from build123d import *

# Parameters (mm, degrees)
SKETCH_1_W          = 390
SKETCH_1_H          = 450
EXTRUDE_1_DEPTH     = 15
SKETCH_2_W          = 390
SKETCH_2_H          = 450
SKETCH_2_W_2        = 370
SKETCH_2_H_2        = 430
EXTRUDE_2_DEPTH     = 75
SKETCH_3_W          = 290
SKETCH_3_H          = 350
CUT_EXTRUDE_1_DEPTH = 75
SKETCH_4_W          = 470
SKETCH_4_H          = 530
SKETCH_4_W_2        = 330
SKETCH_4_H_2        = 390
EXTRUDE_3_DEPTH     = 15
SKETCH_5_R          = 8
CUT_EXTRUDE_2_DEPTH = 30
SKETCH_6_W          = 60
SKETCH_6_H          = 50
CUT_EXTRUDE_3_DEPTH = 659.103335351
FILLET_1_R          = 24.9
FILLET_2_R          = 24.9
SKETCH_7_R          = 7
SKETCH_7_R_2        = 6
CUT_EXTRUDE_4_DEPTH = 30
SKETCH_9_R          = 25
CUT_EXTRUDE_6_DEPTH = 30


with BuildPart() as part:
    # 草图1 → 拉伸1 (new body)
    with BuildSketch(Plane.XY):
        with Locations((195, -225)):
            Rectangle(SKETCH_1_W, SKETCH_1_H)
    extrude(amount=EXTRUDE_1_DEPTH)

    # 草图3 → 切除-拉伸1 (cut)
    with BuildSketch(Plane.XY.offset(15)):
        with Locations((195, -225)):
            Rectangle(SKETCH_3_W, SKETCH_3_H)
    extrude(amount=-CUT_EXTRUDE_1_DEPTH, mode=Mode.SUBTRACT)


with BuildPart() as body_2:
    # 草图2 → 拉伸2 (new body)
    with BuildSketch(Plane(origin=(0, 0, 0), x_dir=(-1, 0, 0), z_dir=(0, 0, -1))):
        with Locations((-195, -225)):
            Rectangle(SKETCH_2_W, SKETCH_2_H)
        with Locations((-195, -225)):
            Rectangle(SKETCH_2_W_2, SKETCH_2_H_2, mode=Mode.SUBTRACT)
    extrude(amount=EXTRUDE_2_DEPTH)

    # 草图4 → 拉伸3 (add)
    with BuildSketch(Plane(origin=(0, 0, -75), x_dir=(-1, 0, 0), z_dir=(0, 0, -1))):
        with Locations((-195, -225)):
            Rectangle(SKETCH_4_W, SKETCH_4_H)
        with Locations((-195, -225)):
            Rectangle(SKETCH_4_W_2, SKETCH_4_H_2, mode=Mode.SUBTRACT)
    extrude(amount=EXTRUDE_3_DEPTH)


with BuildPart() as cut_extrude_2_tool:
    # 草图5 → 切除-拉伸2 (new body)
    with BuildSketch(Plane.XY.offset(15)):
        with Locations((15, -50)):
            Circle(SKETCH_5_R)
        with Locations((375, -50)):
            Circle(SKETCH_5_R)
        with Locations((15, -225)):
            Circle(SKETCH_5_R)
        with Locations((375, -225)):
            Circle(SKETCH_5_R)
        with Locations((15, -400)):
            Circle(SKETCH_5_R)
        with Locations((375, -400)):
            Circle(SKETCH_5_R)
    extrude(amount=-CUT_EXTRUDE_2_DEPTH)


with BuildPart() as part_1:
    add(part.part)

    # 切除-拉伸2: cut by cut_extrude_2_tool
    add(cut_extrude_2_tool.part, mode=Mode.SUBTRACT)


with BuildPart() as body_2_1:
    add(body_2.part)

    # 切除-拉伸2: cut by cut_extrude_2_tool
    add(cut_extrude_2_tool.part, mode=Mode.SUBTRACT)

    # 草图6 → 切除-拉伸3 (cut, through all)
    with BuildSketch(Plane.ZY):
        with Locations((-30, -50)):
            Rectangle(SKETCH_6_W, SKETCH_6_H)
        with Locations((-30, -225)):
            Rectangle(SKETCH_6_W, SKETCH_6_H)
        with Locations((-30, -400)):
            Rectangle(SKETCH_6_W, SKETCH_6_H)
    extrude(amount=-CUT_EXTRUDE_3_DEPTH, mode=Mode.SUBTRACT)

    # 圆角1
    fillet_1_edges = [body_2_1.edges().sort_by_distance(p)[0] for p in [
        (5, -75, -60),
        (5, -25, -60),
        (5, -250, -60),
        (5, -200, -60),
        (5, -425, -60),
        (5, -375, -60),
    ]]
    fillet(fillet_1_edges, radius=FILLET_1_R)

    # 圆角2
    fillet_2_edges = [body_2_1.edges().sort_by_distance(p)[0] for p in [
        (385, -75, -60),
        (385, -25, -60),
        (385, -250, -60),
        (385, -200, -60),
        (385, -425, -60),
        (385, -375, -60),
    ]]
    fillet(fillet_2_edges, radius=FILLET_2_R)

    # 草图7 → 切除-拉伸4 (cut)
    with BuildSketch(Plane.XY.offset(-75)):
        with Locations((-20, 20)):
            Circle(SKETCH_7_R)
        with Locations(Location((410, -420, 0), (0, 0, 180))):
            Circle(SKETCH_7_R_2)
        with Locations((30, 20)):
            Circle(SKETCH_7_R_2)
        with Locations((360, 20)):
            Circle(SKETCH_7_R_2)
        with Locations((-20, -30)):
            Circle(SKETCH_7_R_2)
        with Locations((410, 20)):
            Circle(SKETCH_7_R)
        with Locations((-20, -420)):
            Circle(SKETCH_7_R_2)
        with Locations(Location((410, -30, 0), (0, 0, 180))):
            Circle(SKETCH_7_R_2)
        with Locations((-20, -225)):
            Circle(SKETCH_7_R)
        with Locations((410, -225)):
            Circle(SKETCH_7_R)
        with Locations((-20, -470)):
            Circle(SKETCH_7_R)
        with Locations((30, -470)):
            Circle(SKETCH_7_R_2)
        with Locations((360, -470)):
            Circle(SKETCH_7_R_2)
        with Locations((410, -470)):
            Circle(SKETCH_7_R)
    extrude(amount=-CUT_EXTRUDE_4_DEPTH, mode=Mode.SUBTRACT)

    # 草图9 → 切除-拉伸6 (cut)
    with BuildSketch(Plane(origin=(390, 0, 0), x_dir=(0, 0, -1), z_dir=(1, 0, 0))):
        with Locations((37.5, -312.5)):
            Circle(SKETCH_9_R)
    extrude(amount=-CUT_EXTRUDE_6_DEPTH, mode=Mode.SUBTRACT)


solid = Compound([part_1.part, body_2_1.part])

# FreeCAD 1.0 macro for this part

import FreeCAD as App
import Part
import Sketcher
from FreeCAD import Vector


def edges_at(feature, points):
    """Names of the edges that pass closest to the given points."""
    edges = feature.Shape.Edges
    near = lambda p: min(range(len(edges)), key=lambda i: edges[i].distToShape(Part.Vertex(*p))[0])
    return sorted({f"Edge{near(p) + 1}" for p in points})


def add_polygon(sketch, points):
    """Adds a closed chain of lines whose ends are joined by coincident constraints."""
    first, n = sketch.GeometryCount, len(points)
    for a, b in zip(points, points[1:] + points[:1]):
        sketch.addGeometry(Part.LineSegment(App.Vector(*a, 0), App.Vector(*b, 0)), False)
    for i in range(n):
        sketch.addConstraint(Sketcher.Constraint("Coincident", first + i, 2, first + (i + 1) % n, 1))

doc = App.newDocument("Part")
body = doc.addObject("PartDesign::Body", "Body")

sketch1 = body.newObject("Sketcher::SketchObject", "Sketch")
sketch1.AttachmentSupport = (doc.getObject("XY_Plane"), [""])
sketch1.MapMode = "FlatFace"
add_polygon(sketch1, [(0, 0), (0, -450), (390, -450), (390, 0)])
sketch1.addConstraint(Sketcher.Constraint("Vertical", 0))
sketch1.addConstraint(Sketcher.Constraint("Horizontal", 1))
sketch1.addConstraint(Sketcher.Constraint("Vertical", 2))
sketch1.addConstraint(Sketcher.Constraint("Horizontal", 3))
sketch1.addConstraint(Sketcher.Constraint("Coincident", 3, 2, -1, 1))
sketch1.addConstraint(Sketcher.Constraint("DistanceX", 1, 1, 1, 2, 390.0))
sketch1.addConstraint(Sketcher.Constraint("DistanceY", 0, 2, 0, 1, 450.0))
pad1 = body.newObject("PartDesign::Pad", "Pad")
pad1.Profile = sketch1
pad1.Length = 15

sketch2 = body.newObject("Sketcher::SketchObject", "Sketch001")
sketch2.AttachmentSupport = (doc.getObject("XY_Plane"), [""])
sketch2.MapMode = "FlatFace"
sketch2.AttachmentOffset = App.Placement(Vector(0, 0, 15), App.Rotation())
add_polygon(sketch2, [(50, -50), (50, -400), (340, -400), (340, -50)])
sketch2.addConstraint(Sketcher.Constraint("Vertical", 0))
sketch2.addConstraint(Sketcher.Constraint("Horizontal", 1))
sketch2.addConstraint(Sketcher.Constraint("Vertical", 2))
sketch2.addConstraint(Sketcher.Constraint("Horizontal", 3))
sketch2.addConstraint(Sketcher.Constraint("DistanceX", 1, 1, 1, 2, 290.0))
sketch2.addConstraint(Sketcher.Constraint("DistanceY", 0, 2, 0, 1, 350.0))
sketch2.addConstraint(Sketcher.Constraint("DistanceX", -1, 1, 0, 2, 50.0))
sketch2.addConstraint(Sketcher.Constraint("DistanceY", 0, 2, -1, 1, 400.0))
pocket1 = body.newObject("PartDesign::Pocket", "Pocket")
pocket1.Profile = sketch2
pocket1.Length = 75
body2 = doc.addObject("PartDesign::Body", "Body001")

sketch3 = body2.newObject("Sketcher::SketchObject", "Sketch002")
sketch3.AttachmentSupport = (doc.getObject("XY_Plane001"), [""])
sketch3.MapMode = "FlatFace"
add_polygon(sketch3, [(390, 0), (390, -450), (0, -450), (0, 0)])
add_polygon(sketch3, [(10, -440), (380, -440), (380, -10), (10, -10)])
sketch3.addConstraint(Sketcher.Constraint("Vertical", 0))
sketch3.addConstraint(Sketcher.Constraint("Horizontal", 1))
sketch3.addConstraint(Sketcher.Constraint("Vertical", 2))
sketch3.addConstraint(Sketcher.Constraint("Horizontal", 3))
sketch3.addConstraint(Sketcher.Constraint("Horizontal", 4))
sketch3.addConstraint(Sketcher.Constraint("Vertical", 5))
sketch3.addConstraint(Sketcher.Constraint("Horizontal", 6))
sketch3.addConstraint(Sketcher.Constraint("Vertical", 7))
sketch3.addConstraint(Sketcher.Constraint("Coincident", 2, 2, -1, 1))
sketch3.addConstraint(Sketcher.Constraint("DistanceX", 1, 2, 1, 1, 390.0))
sketch3.addConstraint(Sketcher.Constraint("DistanceX", 4, 1, 4, 2, 370.0))
sketch3.addConstraint(Sketcher.Constraint("DistanceY", 0, 2, 0, 1, 450.0))
sketch3.addConstraint(Sketcher.Constraint("DistanceY", 5, 1, 5, 2, 430.0))
sketch3.addConstraint(Sketcher.Constraint("DistanceX", -1, 1, 4, 2, 380.0))
sketch3.addConstraint(Sketcher.Constraint("DistanceY", 4, 2, -1, 1, 440.0))
pad2 = body2.newObject("PartDesign::Pad", "Pad001")
pad2.Profile = sketch3
pad2.Length = 75
pad2.Reversed = True

sketch4 = body2.newObject("Sketcher::SketchObject", "Sketch003")
sketch4.AttachmentSupport = (doc.getObject("XY_Plane001"), [""])
sketch4.MapMode = "FlatFace"
sketch4.AttachmentOffset = App.Placement(Vector(0, 0, -75), App.Rotation())
add_polygon(sketch4, [(430, 40), (430, -490), (-40, -490), (-40, 40)])
add_polygon(sketch4, [(30, -420), (360, -420), (360, -30), (30, -30)])
sketch4.addConstraint(Sketcher.Constraint("Vertical", 0))
sketch4.addConstraint(Sketcher.Constraint("Horizontal", 1))
sketch4.addConstraint(Sketcher.Constraint("Vertical", 2))
sketch4.addConstraint(Sketcher.Constraint("Horizontal", 3))
sketch4.addConstraint(Sketcher.Constraint("Horizontal", 4))
sketch4.addConstraint(Sketcher.Constraint("Vertical", 5))
sketch4.addConstraint(Sketcher.Constraint("Horizontal", 6))
sketch4.addConstraint(Sketcher.Constraint("Vertical", 7))
sketch4.addConstraint(Sketcher.Constraint("DistanceX", 1, 2, 1, 1, 470.0))
sketch4.addConstraint(Sketcher.Constraint("DistanceX", 4, 1, 4, 2, 330.0))
sketch4.addConstraint(Sketcher.Constraint("DistanceY", 0, 2, 0, 1, 530.0))
sketch4.addConstraint(Sketcher.Constraint("DistanceY", 5, 1, 5, 2, 390.0))
sketch4.addConstraint(Sketcher.Constraint("DistanceX", -1, 1, 0, 2, 430.0))
sketch4.addConstraint(Sketcher.Constraint("DistanceY", 0, 2, -1, 1, 490.0))
sketch4.addConstraint(Sketcher.Constraint("DistanceX", -1, 1, 4, 2, 360.0))
sketch4.addConstraint(Sketcher.Constraint("DistanceY", 4, 2, -1, 1, 420.0))
pad3 = body2.newObject("PartDesign::Pad", "Pad002")
pad3.Profile = sketch4
pad3.Length = 15
pad3.Reversed = True
body3 = doc.addObject("PartDesign::Body", "Body002")
body3.AllowCompound = True

sketch5 = body3.newObject("Sketcher::SketchObject", "Sketch004")
sketch5.AttachmentSupport = (doc.getObject("XY_Plane002"), [""])
sketch5.MapMode = "FlatFace"
sketch5.AttachmentOffset = App.Placement(Vector(0, 0, 15), App.Rotation())
sketch5.addGeometry(Part.Circle(Vector(15, -50, 0), Vector(0, 0, 1), 8), False)
sketch5.addGeometry(Part.Circle(Vector(375, -50, 0), Vector(0, 0, 1), 8), False)
sketch5.addGeometry(Part.Circle(Vector(15, -225, 0), Vector(0, 0, 1), 8), False)
sketch5.addGeometry(Part.Circle(Vector(375, -225, 0), Vector(0, 0, 1), 8), False)
sketch5.addGeometry(Part.Circle(Vector(15, -400, 0), Vector(0, 0, 1), 8), False)
sketch5.addGeometry(Part.Circle(Vector(375, -400, 0), Vector(0, 0, 1), 8), False)
sketch5.addConstraint(Sketcher.Constraint("Equal", 0, 1))
sketch5.addConstraint(Sketcher.Constraint("Equal", 1, 2))
sketch5.addConstraint(Sketcher.Constraint("Equal", 2, 3))
sketch5.addConstraint(Sketcher.Constraint("Equal", 3, 4))
sketch5.addConstraint(Sketcher.Constraint("Equal", 4, 5))
sketch5.addConstraint(Sketcher.Constraint("Horizontal", 0, 3, 1, 3))
sketch5.addConstraint(Sketcher.Constraint("Horizontal", 2, 3, 3, 3))
sketch5.addConstraint(Sketcher.Constraint("Horizontal", 4, 3, 5, 3))
sketch5.addConstraint(Sketcher.Constraint("Vertical", 0, 3, 2, 3))
sketch5.addConstraint(Sketcher.Constraint("Vertical", 1, 3, 3, 3))
sketch5.addConstraint(Sketcher.Constraint("Vertical", 2, 3, 4, 3))
sketch5.addConstraint(Sketcher.Constraint("Vertical", 3, 3, 5, 3))
sketch5.addConstraint(Sketcher.Constraint("Diameter", 0, 16.0))
sketch5.addConstraint(Sketcher.Constraint("DistanceX", -1, 1, 0, 3, 15.0))
sketch5.addConstraint(Sketcher.Constraint("DistanceY", 0, 3, -1, 1, 50.0))
sketch5.addConstraint(Sketcher.Constraint("DistanceX", -1, 1, 1, 3, 375.0))
sketch5.addConstraint(Sketcher.Constraint("DistanceY", 2, 3, -1, 1, 225.0))
sketch5.addConstraint(Sketcher.Constraint("DistanceY", 4, 3, -1, 1, 400.0))
pad4 = body3.newObject("PartDesign::Pad", "Pad003")
pad4.Profile = sketch5
pad4.Length = 30
pad4.Reversed = True
doc.recompute()

body4 = doc.addObject("PartDesign::Body", "Body003")
body4.BaseFeature = body3
boolean = body.newObject("PartDesign::Boolean", "Boolean")
boolean.Type = "Cut"
boolean.addObjects([body4])
doc.recompute()

boolean2 = body2.newObject("PartDesign::Boolean", "Boolean001")
boolean2.Type = "Cut"
boolean2.addObjects([body3])

sketch6 = body2.newObject("Sketcher::SketchObject", "Sketch005")
sketch6.AttachmentSupport = (doc.getObject("YZ_Plane001"), [""])
sketch6.MapMode = "FlatFace"
add_polygon(sketch6, [(-25, -60), (-75, -60), (-75, 0), (-25, 0)])
add_polygon(sketch6, [(-200, -60), (-250, -60), (-250, 0), (-200, 0)])
add_polygon(sketch6, [(-375, -60), (-425, -60), (-425, 0), (-375, 0)])
sketch6.addConstraint(Sketcher.Constraint("Horizontal", 0))
sketch6.addConstraint(Sketcher.Constraint("Vertical", 1))
sketch6.addConstraint(Sketcher.Constraint("Horizontal", 2))
sketch6.addConstraint(Sketcher.Constraint("Vertical", 3))
sketch6.addConstraint(Sketcher.Constraint("Horizontal", 4))
sketch6.addConstraint(Sketcher.Constraint("Vertical", 5))
sketch6.addConstraint(Sketcher.Constraint("Horizontal", 6))
sketch6.addConstraint(Sketcher.Constraint("Vertical", 7))
sketch6.addConstraint(Sketcher.Constraint("Horizontal", 8))
sketch6.addConstraint(Sketcher.Constraint("Vertical", 9))
sketch6.addConstraint(Sketcher.Constraint("Horizontal", 10))
sketch6.addConstraint(Sketcher.Constraint("Vertical", 11))
sketch6.addConstraint(Sketcher.Constraint("PointOnObject", 1, 2, -1))
sketch6.addConstraint(Sketcher.Constraint("PointOnObject", 5, 2, -1))
sketch6.addConstraint(Sketcher.Constraint("PointOnObject", 9, 2, -1))
sketch6.addConstraint(Sketcher.Constraint("Horizontal", 3, 2, 4, 2))
sketch6.addConstraint(Sketcher.Constraint("Horizontal", 7, 2, 8, 2))
sketch6.addConstraint(Sketcher.Constraint("Equal", 2, 4))
sketch6.addConstraint(Sketcher.Constraint("Equal", 6, 8))
sketch6.addConstraint(Sketcher.Constraint("DistanceX", 0, 2, 0, 1, 50.0))
sketch6.addConstraint(Sketcher.Constraint("DistanceY", 1, 1, 1, 2, 60.0))
sketch6.addConstraint(Sketcher.Constraint("DistanceX", 0, 2, -1, 1, 75.0))
sketch6.addConstraint(Sketcher.Constraint("DistanceX", 4, 2, -1, 1, 250.0))
sketch6.addConstraint(Sketcher.Constraint("DistanceX", 8, 2, -1, 1, 425.0))
pocket2 = body2.newObject("PartDesign::Pocket", "Pocket001")
pocket2.Profile = sketch6
pocket2.Type = "ThroughAll"
pocket2.Reversed = True
doc.recompute()

fillet = body2.newObject("PartDesign::Fillet", "Fillet")
fillet.Base = (pocket2, edges_at(pocket2, [
    (5, -75, -60),
    (5, -25, -60),
    (5, -250, -60),
    (5, -200, -60),
    (5, -425, -60),
    (5, -375, -60),
]))
fillet.Radius = 24.9
doc.recompute()

fillet2 = body2.newObject("PartDesign::Fillet", "Fillet001")
fillet2.Base = (fillet, edges_at(fillet, [
    (385, -75, -60),
    (385, -25, -60),
    (385, -250, -60),
    (385, -200, -60),
    (385, -425, -60),
    (385, -375, -60),
]))
fillet2.Radius = 24.9

sketch7 = body2.newObject("Sketcher::SketchObject", "Sketch006")
sketch7.AttachmentSupport = (doc.getObject("XY_Plane001"), [""])
sketch7.MapMode = "FlatFace"
sketch7.AttachmentOffset = App.Placement(Vector(0, 0, -75), App.Rotation())
sketch7.addGeometry(Part.Circle(Vector(-20, 20, 0), Vector(0, 0, 1), 7), False)
sketch7.addGeometry(Part.Circle(Vector(410, -420, 0), Vector(0, 0, 1), 6), False)
sketch7.addGeometry(Part.Circle(Vector(30, 20, 0), Vector(0, 0, 1), 6), False)
sketch7.addGeometry(Part.Circle(Vector(360, 20, 0), Vector(0, 0, 1), 6), False)
sketch7.addGeometry(Part.Circle(Vector(-20, -30, 0), Vector(0, 0, 1), 6), False)
sketch7.addGeometry(Part.Circle(Vector(410, 20, 0), Vector(0, 0, 1), 7), False)
sketch7.addGeometry(Part.Circle(Vector(-20, -420, 0), Vector(0, 0, 1), 6), False)
sketch7.addGeometry(Part.Circle(Vector(410, -30, 0), Vector(0, 0, 1), 6), False)
sketch7.addGeometry(Part.Circle(Vector(-20, -225, 0), Vector(0, 0, 1), 7), False)
sketch7.addGeometry(Part.Circle(Vector(410, -225, 0), Vector(0, 0, 1), 7), False)
sketch7.addGeometry(Part.Circle(Vector(-20, -470, 0), Vector(0, 0, 1), 7), False)
sketch7.addGeometry(Part.Circle(Vector(30, -470, 0), Vector(0, 0, 1), 6), False)
sketch7.addGeometry(Part.Circle(Vector(360, -470, 0), Vector(0, 0, 1), 6), False)
sketch7.addGeometry(Part.Circle(Vector(410, -470, 0), Vector(0, 0, 1), 7), False)
sketch7.addConstraint(Sketcher.Constraint("Equal", 1, 2))
sketch7.addConstraint(Sketcher.Constraint("Equal", 2, 3))
sketch7.addConstraint(Sketcher.Constraint("Equal", 3, 4))
sketch7.addConstraint(Sketcher.Constraint("Equal", 0, 5))
sketch7.addConstraint(Sketcher.Constraint("Equal", 4, 6))
sketch7.addConstraint(Sketcher.Constraint("Equal", 6, 7))
sketch7.addConstraint(Sketcher.Constraint("Equal", 5, 8))
sketch7.addConstraint(Sketcher.Constraint("Equal", 8, 9))
sketch7.addConstraint(Sketcher.Constraint("Equal", 9, 10))
sketch7.addConstraint(Sketcher.Constraint("Equal", 7, 11))
sketch7.addConstraint(Sketcher.Constraint("Equal", 11, 12))
sketch7.addConstraint(Sketcher.Constraint("Equal", 10, 13))
sketch7.addConstraint(Sketcher.Constraint("Horizontal", 0, 3, 2, 3))
sketch7.addConstraint(Sketcher.Constraint("Horizontal", 2, 3, 3, 3))
sketch7.addConstraint(Sketcher.Constraint("Horizontal", 3, 3, 5, 3))
sketch7.addConstraint(Sketcher.Constraint("Horizontal", 1, 3, 6, 3))
sketch7.addConstraint(Sketcher.Constraint("Horizontal", 4, 3, 7, 3))
sketch7.addConstraint(Sketcher.Constraint("Horizontal", 8, 3, 9, 3))
sketch7.addConstraint(Sketcher.Constraint("Horizontal", 10, 3, 11, 3))
sketch7.addConstraint(Sketcher.Constraint("Horizontal", 11, 3, 12, 3))
sketch7.addConstraint(Sketcher.Constraint("Horizontal", 12, 3, 13, 3))
sketch7.addConstraint(Sketcher.Constraint("Vertical", 0, 3, 4, 3))
sketch7.addConstraint(Sketcher.Constraint("Vertical", 1, 3, 5, 3))
sketch7.addConstraint(Sketcher.Constraint("Vertical", 4, 3, 6, 3))
sketch7.addConstraint(Sketcher.Constraint("Vertical", 5, 3, 7, 3))
sketch7.addConstraint(Sketcher.Constraint("Vertical", 6, 3, 8, 3))
sketch7.addConstraint(Sketcher.Constraint("Vertical", 7, 3, 9, 3))
sketch7.addConstraint(Sketcher.Constraint("Vertical", 8, 3, 10, 3))
sketch7.addConstraint(Sketcher.Constraint("Vertical", 2, 3, 11, 3))
sketch7.addConstraint(Sketcher.Constraint("Vertical", 3, 3, 12, 3))
sketch7.addConstraint(Sketcher.Constraint("Vertical", 9, 3, 13, 3))
sketch7.addConstraint(Sketcher.Constraint("Diameter", 0, 14.0))
sketch7.addConstraint(Sketcher.Constraint("Diameter", 1, 12.0))
sketch7.addConstraint(Sketcher.Constraint("DistanceX", 0, 3, -1, 1, 20.0))
sketch7.addConstraint(Sketcher.Constraint("DistanceY", -1, 1, 0, 3, 20.0))
sketch7.addConstraint(Sketcher.Constraint("DistanceX", -1, 1, 1, 3, 410.0))
sketch7.addConstraint(Sketcher.Constraint("DistanceY", 1, 3, -1, 1, 420.0))
sketch7.addConstraint(Sketcher.Constraint("DistanceX", -1, 1, 2, 3, 30.0))
sketch7.addConstraint(Sketcher.Constraint("DistanceX", -1, 1, 3, 3, 360.0))
sketch7.addConstraint(Sketcher.Constraint("DistanceY", 4, 3, -1, 1, 30.0))
sketch7.addConstraint(Sketcher.Constraint("DistanceY", 8, 3, -1, 1, 225.0))
sketch7.addConstraint(Sketcher.Constraint("DistanceY", 10, 3, -1, 1, 470.0))
pocket3 = body2.newObject("PartDesign::Pocket", "Pocket002")
pocket3.Profile = sketch7
pocket3.Length = 30

sketch8 = body2.newObject("Sketcher::SketchObject", "Sketch007")
sketch8.AttachmentSupport = (doc.getObject("YZ_Plane001"), [""])
sketch8.MapMode = "FlatFace"
sketch8.AttachmentOffset = App.Placement(Vector(0, 0, 390), App.Rotation())
sketch8.addGeometry(Part.Circle(Vector(-312.5, -37.5, 0), Vector(0, 0, 1), 25), False)
sketch8.addConstraint(Sketcher.Constraint("Diameter", 0, 50.0))
sketch8.addConstraint(Sketcher.Constraint("DistanceX", 0, 3, -1, 1, 312.5))
sketch8.addConstraint(Sketcher.Constraint("DistanceY", 0, 3, -1, 1, 37.5))
pocket4 = body2.newObject("PartDesign::Pocket", "Pocket003")
pocket4.Profile = sketch8
pocket4.Length = 30

doc.recompute()
